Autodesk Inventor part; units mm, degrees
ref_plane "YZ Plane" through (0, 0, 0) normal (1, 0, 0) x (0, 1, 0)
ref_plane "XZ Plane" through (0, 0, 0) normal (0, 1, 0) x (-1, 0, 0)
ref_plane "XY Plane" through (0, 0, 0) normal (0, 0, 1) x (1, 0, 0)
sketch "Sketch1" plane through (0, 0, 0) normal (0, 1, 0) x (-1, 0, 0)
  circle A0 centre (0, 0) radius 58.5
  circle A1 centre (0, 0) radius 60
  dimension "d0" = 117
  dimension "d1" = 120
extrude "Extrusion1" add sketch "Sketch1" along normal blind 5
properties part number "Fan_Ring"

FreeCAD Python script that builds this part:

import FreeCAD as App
import Part
import Sketcher

V = App.Vector

doc = App.newDocument("Part")
body = doc.addObject("PartDesign::Body", "Body")

# Sketch on XZ plane
sketch1 = body.newObject("Sketcher::SketchObject", "Sketch")
sketch1.AttachmentSupport = (doc.getObject("XZ_Plane"), [""])
sketch1.MapMode = "FlatFace"
sketch1.addGeometry(Part.Circle(V(0, 0, 0), V(0, 0, 1), 60), False)
sketch1.addGeometry(Part.Circle(V(0, 0, 0), V(0, 0, 1), 58), False)
sketch1.addConstraint(Sketcher.Constraint("Coincident", 0, 3, -1, 1))
sketch1.addConstraint(Sketcher.Constraint("Coincident", 1, 3, -1, 1))
sketch1.addConstraint(Sketcher.Constraint("Diameter", 0, 120.0))
sketch1.addConstraint(Sketcher.Constraint("Diameter", 1, 117.0))
pad1 = body.newObject("PartDesign::Pad", "Pad")
pad1.Profile = sketch1
pad1.Length = 5
pad1.Reversed = True

doc.recompute()
